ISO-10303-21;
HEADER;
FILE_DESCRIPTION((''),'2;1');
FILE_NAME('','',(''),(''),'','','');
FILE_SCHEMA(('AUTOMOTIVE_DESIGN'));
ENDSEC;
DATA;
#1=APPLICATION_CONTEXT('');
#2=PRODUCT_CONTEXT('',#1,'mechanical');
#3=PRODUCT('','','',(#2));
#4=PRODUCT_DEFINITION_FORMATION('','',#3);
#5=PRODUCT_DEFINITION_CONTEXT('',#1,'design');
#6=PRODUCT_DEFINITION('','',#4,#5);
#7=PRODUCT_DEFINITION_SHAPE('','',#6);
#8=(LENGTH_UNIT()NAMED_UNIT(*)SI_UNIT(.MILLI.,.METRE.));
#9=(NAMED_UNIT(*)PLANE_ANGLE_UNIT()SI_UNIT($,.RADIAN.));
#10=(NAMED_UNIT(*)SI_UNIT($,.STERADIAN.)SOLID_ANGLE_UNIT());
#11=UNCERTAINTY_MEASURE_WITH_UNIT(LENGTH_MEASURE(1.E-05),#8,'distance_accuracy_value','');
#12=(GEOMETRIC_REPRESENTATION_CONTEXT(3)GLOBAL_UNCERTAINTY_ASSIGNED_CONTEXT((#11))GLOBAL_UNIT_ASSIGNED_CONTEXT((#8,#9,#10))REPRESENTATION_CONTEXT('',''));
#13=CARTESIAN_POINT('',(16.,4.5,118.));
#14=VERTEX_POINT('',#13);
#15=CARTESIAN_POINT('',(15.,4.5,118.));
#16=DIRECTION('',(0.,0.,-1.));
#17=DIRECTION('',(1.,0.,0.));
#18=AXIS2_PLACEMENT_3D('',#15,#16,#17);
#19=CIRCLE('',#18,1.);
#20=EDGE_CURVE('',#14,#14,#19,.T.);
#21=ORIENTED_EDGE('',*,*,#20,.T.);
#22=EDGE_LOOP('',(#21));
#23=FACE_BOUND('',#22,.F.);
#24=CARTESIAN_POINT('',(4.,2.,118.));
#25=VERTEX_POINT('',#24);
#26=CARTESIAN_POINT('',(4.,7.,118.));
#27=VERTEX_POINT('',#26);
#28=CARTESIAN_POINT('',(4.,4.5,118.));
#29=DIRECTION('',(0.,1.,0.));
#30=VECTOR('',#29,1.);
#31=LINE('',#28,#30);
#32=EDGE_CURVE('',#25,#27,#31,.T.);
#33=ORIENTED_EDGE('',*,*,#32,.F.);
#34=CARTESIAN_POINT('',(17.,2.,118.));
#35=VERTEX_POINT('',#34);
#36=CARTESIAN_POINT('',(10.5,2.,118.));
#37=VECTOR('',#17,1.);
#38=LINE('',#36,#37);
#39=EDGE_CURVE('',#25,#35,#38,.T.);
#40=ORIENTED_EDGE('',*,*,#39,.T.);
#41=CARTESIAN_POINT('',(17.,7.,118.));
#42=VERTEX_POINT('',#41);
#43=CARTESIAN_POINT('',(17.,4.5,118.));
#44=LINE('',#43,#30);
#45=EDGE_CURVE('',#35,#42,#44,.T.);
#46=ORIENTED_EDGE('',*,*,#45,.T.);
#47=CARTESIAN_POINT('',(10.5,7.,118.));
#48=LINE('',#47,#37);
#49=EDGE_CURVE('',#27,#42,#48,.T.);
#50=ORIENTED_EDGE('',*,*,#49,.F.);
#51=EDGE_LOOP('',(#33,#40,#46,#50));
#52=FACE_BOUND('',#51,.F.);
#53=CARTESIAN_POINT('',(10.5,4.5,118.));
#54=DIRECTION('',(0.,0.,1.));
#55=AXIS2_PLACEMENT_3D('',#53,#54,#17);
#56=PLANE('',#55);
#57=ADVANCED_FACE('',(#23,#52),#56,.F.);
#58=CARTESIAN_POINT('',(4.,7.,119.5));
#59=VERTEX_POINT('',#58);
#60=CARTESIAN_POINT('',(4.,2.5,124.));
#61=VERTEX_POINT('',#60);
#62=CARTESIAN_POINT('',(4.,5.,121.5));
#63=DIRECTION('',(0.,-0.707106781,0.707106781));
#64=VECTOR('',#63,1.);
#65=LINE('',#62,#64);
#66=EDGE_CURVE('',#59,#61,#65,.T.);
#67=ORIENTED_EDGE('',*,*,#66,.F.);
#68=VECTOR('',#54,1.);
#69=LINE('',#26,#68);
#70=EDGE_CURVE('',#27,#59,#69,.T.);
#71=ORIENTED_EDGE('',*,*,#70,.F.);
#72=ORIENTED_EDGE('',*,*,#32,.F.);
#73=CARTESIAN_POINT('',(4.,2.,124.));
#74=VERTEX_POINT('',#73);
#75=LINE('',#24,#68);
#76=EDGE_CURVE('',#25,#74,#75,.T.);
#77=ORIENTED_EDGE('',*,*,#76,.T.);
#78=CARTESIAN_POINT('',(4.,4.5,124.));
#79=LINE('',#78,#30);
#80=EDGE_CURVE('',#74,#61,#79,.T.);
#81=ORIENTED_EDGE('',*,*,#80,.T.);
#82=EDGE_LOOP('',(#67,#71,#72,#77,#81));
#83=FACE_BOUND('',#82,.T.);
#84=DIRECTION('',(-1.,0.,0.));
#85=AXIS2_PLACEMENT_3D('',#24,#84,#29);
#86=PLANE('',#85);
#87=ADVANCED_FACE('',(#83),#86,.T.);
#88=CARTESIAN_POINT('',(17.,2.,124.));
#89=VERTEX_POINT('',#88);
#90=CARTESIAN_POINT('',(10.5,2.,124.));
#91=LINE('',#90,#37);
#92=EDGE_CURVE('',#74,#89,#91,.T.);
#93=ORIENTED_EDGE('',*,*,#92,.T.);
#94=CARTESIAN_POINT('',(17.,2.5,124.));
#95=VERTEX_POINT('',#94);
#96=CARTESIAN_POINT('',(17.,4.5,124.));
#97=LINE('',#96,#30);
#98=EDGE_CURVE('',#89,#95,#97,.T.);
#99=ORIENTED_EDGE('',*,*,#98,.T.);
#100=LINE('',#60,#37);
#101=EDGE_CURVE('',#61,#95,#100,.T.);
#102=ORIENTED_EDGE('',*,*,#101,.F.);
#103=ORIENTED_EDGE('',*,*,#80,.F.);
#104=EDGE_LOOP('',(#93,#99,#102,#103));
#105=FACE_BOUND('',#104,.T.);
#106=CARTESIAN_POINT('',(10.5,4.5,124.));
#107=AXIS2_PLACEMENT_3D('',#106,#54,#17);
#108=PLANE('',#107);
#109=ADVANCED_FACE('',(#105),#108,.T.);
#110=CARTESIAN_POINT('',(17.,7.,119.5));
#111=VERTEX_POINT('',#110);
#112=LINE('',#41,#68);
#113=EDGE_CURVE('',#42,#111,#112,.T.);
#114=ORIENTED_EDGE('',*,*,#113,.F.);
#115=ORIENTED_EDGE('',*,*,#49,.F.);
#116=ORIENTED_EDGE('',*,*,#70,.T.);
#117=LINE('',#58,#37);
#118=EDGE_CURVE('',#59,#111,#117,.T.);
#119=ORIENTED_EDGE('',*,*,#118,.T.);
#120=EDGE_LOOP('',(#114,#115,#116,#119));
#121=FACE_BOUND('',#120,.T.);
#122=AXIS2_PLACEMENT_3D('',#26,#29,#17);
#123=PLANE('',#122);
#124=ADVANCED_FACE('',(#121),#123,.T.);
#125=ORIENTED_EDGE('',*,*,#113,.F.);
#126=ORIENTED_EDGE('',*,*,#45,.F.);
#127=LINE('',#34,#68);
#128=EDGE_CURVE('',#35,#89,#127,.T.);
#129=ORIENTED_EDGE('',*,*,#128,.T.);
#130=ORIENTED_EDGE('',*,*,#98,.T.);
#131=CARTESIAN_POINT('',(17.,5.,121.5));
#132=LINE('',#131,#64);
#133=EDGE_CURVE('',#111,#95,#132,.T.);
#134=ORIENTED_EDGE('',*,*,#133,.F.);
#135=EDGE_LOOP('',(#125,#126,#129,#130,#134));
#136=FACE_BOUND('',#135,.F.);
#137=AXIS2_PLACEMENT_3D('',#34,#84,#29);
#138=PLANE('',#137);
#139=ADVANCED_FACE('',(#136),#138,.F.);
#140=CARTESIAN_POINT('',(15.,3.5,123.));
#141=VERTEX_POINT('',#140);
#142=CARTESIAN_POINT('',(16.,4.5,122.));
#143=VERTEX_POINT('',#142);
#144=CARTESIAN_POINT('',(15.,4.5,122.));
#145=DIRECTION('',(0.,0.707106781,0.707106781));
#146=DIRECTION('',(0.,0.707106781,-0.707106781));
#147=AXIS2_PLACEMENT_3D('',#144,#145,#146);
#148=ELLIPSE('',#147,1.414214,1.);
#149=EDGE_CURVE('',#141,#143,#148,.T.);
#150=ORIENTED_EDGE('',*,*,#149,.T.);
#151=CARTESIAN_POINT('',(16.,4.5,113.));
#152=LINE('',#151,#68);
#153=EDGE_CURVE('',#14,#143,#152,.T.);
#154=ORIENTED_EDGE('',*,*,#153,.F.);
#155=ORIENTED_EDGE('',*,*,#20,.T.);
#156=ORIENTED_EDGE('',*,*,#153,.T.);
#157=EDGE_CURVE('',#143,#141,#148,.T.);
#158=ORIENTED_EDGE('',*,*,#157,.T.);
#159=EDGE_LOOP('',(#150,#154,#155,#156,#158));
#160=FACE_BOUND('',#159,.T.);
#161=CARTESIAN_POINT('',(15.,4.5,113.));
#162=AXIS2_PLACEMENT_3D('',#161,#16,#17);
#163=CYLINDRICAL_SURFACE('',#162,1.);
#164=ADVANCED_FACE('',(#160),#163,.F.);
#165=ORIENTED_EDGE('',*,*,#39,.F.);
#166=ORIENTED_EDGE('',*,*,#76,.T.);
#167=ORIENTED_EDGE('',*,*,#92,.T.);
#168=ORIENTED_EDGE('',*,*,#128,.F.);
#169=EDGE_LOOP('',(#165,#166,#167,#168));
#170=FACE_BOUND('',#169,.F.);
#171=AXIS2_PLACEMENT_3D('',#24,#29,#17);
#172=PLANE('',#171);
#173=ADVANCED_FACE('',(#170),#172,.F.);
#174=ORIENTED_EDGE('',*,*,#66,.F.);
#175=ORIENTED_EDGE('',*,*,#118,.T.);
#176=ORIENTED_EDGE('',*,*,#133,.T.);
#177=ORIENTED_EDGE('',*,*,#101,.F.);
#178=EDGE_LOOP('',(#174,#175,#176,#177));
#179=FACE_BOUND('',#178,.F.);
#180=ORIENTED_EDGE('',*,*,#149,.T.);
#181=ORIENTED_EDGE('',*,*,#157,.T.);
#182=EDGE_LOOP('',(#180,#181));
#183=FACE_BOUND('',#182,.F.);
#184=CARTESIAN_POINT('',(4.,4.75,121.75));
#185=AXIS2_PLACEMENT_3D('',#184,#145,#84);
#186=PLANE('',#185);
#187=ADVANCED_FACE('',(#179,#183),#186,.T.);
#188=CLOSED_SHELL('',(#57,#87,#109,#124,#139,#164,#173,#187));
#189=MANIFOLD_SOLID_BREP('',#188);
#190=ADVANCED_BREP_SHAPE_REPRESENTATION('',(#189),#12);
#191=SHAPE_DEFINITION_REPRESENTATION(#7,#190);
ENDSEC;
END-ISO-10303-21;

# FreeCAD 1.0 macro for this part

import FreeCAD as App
import Part
import Sketcher
Q = App.Units.Quantity


def edges_at(feature, points):
    """Names of the edges that pass closest to the given points."""
    edges = feature.Shape.Edges
    near = lambda p: min(range(len(edges)), key=lambda i: edges[i].distToShape(Part.Vertex(*p))[0])
    return sorted({f"Edge{near(p) + 1}" for p in points})


def add_polygon(sketch, points):
    """Adds a closed chain of lines whose ends are joined by coincident constraints."""
    first, n = sketch.GeometryCount, len(points)
    for a, b in zip(points, points[1:] + points[:1]):
        sketch.addGeometry(Part.LineSegment(App.Vector(*a, 0), App.Vector(*b, 0)), False)
    for i in range(n):
        sketch.addConstraint(Sketcher.Constraint("Coincident", first + i, 2, first + (i + 1) % n, 1))

doc = App.newDocument("Part")
body = doc.addObject("PartDesign::Body", "Body")

# Sketch on XY plane
sketch1 = body.newObject("Sketcher::SketchObject", "Sketch")
sketch1.AttachmentSupport = (doc.getObject("XY_Plane"), [""])
sketch1.MapMode = "FlatFace"
sketch1.AttachmentOffset = App.Placement(App.Vector(0, 0, 113), App.Rotation())
sketch1.addGeometry(Part.Circle(App.Vector(15, 4.5, 0), App.Vector(0, 0, 1), 1), False)
sketch1.addConstraint([
    Sketcher.Constraint("Diameter", 0, Q("2 mm")),
    Sketcher.Constraint("DistanceX", -1, 1, 0, 3, Q("15 mm")),
    Sketcher.Constraint("DistanceY", -1, 1, 0, 3, Q("4.5 mm")),
])
pad1 = body.newObject("PartDesign::Pad", "Pad")
pad1.Profile = sketch1
pad1.Length = 10
body2 = doc.addObject("PartDesign::Body", "Body001")

# Sketch on XY plane
sketch2 = body2.newObject("Sketcher::SketchObject", "Sketch001")
sketch2.AttachmentSupport = (doc.getObject("XY_Plane001"), [""])
sketch2.MapMode = "FlatFace"
sketch2.AttachmentOffset = App.Placement(App.Vector(0, 0, 118), App.Rotation())
add_polygon(sketch2, [(4, 7), (4, 2), (17, 2), (17, 7)])  # lines 0-3
sketch2.addConstraint([
    Sketcher.Constraint("Vertical", 0),
    Sketcher.Constraint("Horizontal", 1),
    Sketcher.Constraint("Vertical", 2),
    Sketcher.Constraint("Horizontal", 3),
    Sketcher.Constraint("DistanceX", 1, 1, 1, 2, Q("13 mm")),
    Sketcher.Constraint("DistanceY", 0, 2, 0, 1, Q("5 mm")),
    Sketcher.Constraint("DistanceX", -1, 1, 0, 2, Q("4 mm")),
    Sketcher.Constraint("DistanceY", -1, 1, 0, 2, Q("2 mm")),
])
pad2 = body2.newObject("PartDesign::Pad", "Pad001")
pad2.Profile = sketch2
pad2.Length = 6
doc.recompute()

chamfer = body2.newObject("PartDesign::Chamfer", "Chamfer")
chamfer.Base = (pad2, edges_at(pad2, [(10.5, 7, 124)]))
chamfer.Size = 4.5
doc.recompute()

boolean = body2.newObject("PartDesign::Boolean", "Boolean")
boolean.Type = "Cut"
boolean.addObjects([body])

doc.recompute()
